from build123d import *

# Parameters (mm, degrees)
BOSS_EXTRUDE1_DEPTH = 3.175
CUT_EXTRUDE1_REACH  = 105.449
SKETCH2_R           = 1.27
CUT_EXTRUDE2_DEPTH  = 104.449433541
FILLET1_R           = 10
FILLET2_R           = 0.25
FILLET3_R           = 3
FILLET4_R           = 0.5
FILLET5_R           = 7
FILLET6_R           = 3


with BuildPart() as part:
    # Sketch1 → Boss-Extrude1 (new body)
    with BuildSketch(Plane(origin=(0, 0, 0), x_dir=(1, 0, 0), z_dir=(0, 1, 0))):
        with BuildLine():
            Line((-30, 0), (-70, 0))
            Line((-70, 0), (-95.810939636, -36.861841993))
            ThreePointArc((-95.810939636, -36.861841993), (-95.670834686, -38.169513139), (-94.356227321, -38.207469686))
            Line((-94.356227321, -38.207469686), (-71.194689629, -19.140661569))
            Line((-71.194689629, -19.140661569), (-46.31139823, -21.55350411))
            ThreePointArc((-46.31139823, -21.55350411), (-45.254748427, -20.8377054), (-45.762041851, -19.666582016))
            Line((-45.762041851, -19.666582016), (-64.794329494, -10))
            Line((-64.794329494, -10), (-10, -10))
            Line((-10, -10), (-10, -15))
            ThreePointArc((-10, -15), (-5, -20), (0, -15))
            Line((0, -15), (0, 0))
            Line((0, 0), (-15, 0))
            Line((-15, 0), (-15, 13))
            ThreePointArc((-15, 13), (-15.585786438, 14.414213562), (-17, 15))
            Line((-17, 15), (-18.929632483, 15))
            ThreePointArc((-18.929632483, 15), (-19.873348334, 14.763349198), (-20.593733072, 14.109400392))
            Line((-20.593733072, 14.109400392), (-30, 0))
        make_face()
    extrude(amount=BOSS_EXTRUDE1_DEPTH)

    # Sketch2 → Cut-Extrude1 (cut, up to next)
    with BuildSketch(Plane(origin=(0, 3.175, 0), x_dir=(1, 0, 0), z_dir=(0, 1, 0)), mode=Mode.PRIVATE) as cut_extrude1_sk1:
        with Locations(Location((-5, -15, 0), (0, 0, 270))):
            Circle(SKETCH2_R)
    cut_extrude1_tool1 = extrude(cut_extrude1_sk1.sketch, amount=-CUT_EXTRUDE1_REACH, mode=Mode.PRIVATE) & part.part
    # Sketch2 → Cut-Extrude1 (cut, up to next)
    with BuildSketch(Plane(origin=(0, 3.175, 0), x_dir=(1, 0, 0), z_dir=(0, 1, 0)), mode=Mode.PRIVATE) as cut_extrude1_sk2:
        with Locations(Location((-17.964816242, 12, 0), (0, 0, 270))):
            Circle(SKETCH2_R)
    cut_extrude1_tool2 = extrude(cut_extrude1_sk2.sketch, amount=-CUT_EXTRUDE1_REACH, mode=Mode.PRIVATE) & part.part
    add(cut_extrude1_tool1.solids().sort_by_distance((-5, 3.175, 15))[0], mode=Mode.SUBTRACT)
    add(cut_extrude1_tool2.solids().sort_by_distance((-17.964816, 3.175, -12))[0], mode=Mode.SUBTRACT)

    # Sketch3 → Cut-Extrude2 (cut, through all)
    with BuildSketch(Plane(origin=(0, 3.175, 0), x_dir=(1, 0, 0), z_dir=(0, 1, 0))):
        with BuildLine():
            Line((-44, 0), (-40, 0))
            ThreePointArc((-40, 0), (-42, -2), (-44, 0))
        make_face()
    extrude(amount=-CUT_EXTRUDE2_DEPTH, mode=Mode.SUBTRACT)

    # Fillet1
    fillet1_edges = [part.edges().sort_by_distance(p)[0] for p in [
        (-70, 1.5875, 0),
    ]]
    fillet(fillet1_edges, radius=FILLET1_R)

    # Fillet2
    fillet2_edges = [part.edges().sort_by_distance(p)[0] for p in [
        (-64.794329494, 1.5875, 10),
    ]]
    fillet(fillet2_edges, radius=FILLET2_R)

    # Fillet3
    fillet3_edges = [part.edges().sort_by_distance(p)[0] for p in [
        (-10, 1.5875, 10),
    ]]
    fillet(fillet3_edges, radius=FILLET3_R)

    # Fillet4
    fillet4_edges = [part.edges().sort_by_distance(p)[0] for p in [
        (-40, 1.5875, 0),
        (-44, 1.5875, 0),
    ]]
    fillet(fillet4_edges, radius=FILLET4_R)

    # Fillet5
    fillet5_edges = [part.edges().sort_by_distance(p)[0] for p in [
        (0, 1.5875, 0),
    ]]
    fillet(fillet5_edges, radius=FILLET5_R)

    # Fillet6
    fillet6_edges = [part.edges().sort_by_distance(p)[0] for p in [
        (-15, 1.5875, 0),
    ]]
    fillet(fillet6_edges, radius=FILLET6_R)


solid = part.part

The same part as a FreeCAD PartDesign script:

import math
import FreeCAD as App
import Part
import Sketcher
from FreeCAD import Vector
Q = App.Units.Quantity


def edges_at(feature, points):
    """Names of the edges that pass closest to the given points."""
    edges = feature.Shape.Edges
    near = lambda p: min(range(len(edges)), key=lambda i: edges[i].distToShape(Part.Vertex(*p))[0])
    return sorted({f"Edge{near(p) + 1}" for p in points})

doc = App.newDocument("Part")
body = doc.addObject("PartDesign::Body", "Body")

# Sketch on XZ plane
sketch1 = body.newObject("Sketcher::SketchObject", "Sketch")
sketch1.AttachmentSupport = (doc.getObject("XZ_Plane"), [""])
sketch1.MapMode = "FlatFace"
sketch1.addGeometry([
    Part.LineSegment(Vector(-30, 0, 0), Vector(-70, 0, 0)),  # 0
    Part.LineSegment(Vector(-70, 0, 0), Vector(-95.81094, 36.861842, 0)),  # 1
    Part.ArcOfCircle(Part.Circle(Vector(-94.991788, 37.435418, 0), Vector(0, 0, 1), 1), math.radians(50.538449), math.radians(215)),  # 2
    Part.LineSegment(Vector(-94.356227, 38.20747, 0), Vector(-71.19469, 19.140662, 0)),  # 3
    Part.LineSegment(Vector(-71.19469, 19.140662, 0), Vector(-46.311398, 21.553504, 0)),  # 4
    Part.ArcOfCircle(Part.Circle(Vector(-46.214885, 20.558172, 0), Vector(0, 0, 1), 1), math.radians(-63.073786), math.radians(95.538449)),  # 5
    Part.LineSegment(Vector(-45.762042, 19.666582, 0), Vector(-64.794329, 10, 0)),  # 6
    Part.LineSegment(Vector(-64.794329, 10, 0), Vector(-10, 10, 0)),  # 7
    Part.LineSegment(Vector(-10, 10, 0), Vector(-10, 15, 0)),  # 8
    Part.ArcOfCircle(Part.Circle(Vector(-5, 15, 0), Vector(0, 0, 1), 5), math.radians(0), math.radians(180)),  # 9
    Part.LineSegment(Vector(0, 15, 0), Vector(0, 0, 0)),  # 10
    Part.LineSegment(Vector(0, 0, 0), Vector(-15, 0, 0)),  # 11
    Part.LineSegment(Vector(-15, 0, 0), Vector(-15, -13, 0)),  # 12
    Part.ArcOfCircle(Part.Circle(Vector(-17, -13, 0), Vector(0, 0, 1), 2), math.radians(-90), math.radians(0)),  # 13
    Part.LineSegment(Vector(-17, -15, 0), Vector(-18.929632, -15, 0)),  # 14
    Part.ArcOfCircle(Part.Circle(Vector(-18.929632, -13, 0), Vector(0, 0, 1), 2), math.radians(-146.309933), math.radians(-90)),  # 15
    Part.LineSegment(Vector(-20.593733, -14.1094, 0), Vector(-30, 0, 0)),  # 16
], False)
sketch1.addConstraint([
    Sketcher.Constraint("Coincident", 0, 2, 1, 1),
    Sketcher.Constraint("Tangent", 1, 2, 2, 2),
    Sketcher.Constraint("Tangent", 2, 1, 3, 1),
    Sketcher.Constraint("Coincident", 3, 2, 4, 1),
    Sketcher.Constraint("Tangent", 4, 2, 5, 2),
    Sketcher.Constraint("Tangent", 5, 1, 6, 1),
    Sketcher.Constraint("Coincident", 6, 2, 7, 1),
    Sketcher.Constraint("Coincident", 7, 2, 8, 1),
    Sketcher.Constraint("Tangent", 8, 2, 9, 2),
    Sketcher.Constraint("Tangent", 9, 1, 10, 1),
    Sketcher.Constraint("Coincident", 10, 2, 11, 1),
    Sketcher.Constraint("Coincident", 11, 2, 12, 1),
    Sketcher.Constraint("Tangent", 12, 2, 13, 2),
    Sketcher.Constraint("Tangent", 13, 1, 14, 1),
    Sketcher.Constraint("Tangent", 14, 2, 15, 2),
    Sketcher.Constraint("Tangent", 15, 1, 16, 1),
    Sketcher.Constraint("Coincident", 16, 2, 0, 1),
    Sketcher.Constraint("Horizontal", 0),
    Sketcher.Constraint("Horizontal", 7),
    Sketcher.Constraint("Vertical", 8),
    Sketcher.Constraint("Vertical", 10),
    Sketcher.Constraint("Horizontal", 11),
    Sketcher.Constraint("Vertical", 12),
    Sketcher.Constraint("Horizontal", 14),
    Sketcher.Constraint("Coincident", 10, 2, -1, 1),
    Sketcher.Constraint("Equal", 2, 5),
    Sketcher.Constraint("Equal", 13, 15),
    Sketcher.Constraint("PointOnObject", 0, 2, -1),
    Sketcher.Constraint("Equal", 11, 10),
    Sketcher.Constraint("Radius", 2, 1.0),
    Sketcher.Constraint("Radius", 9, 5.0),
    Sketcher.Constraint("Radius", 13, 2.0),
    Sketcher.Constraint("DistanceX", 0, 2, 0, 1, 40.0),
    Sketcher.Constraint("DistanceX", 11, 2, 11, 1, 15.0),
    Sketcher.Constraint("DistanceY", 8, 1, 8, 2, 5.0),
    Sketcher.Constraint("DistanceY", 12, 2, 12, 1, 13.0),
    Sketcher.Constraint("Angle", 1, Q("125 deg")),
    Sketcher.Constraint("Distance", 1, 45.0),
    Sketcher.Constraint("Distance", 3, 30.0),
    Sketcher.Constraint("Distance", 4, 25.0),
    Sketcher.Constraint("DistanceX", 0, 2, -1, 1, 70.0),
    Sketcher.Constraint("DistanceX", 7, 1, 7, 2, 54.794329),
    Sketcher.Constraint("DistanceX", 4, 2, -1, 1, 46.311398),
    Sketcher.Constraint("DistanceY", 15, 1, -1, 1, 14.1094),
    Sketcher.Constraint("DistanceX", 3, 2, -1, 1, 71.19469),
])
pad1 = body.newObject("PartDesign::Pad", "Pad")
pad1.Profile = sketch1
pad1.Length = 3.175
pad1.Reversed = True

# Sketch on XZ plane
sketch2 = body.newObject("Sketcher::SketchObject", "Sketch001")
sketch2.AttachmentSupport = (doc.getObject("XZ_Plane"), [""])
sketch2.MapMode = "FlatFace"
sketch2.AttachmentOffset = App.Placement(Vector(0, 0, -3.175), App.Rotation())
sketch2.addGeometry(Part.Circle(Vector(-5, 15, 0), Vector(0, 0, 1), 1.27), False)
sketch2.addConstraint([
    Sketcher.Constraint("Diameter", 0, 2.54),
    Sketcher.Constraint("DistanceX", 0, 3, -1, 1, 5.0),
    Sketcher.Constraint("DistanceY", -1, 1, 0, 3, 15.0),
])
pocket1 = body.newObject("PartDesign::Pocket", "Pocket")
pocket1.Profile = sketch2
pocket1.Type = "UpToFirst"
pocket1.Reversed = True

# Sketch on XZ plane
sketch3 = body.newObject("Sketcher::SketchObject", "Sketch002")
sketch3.AttachmentSupport = (doc.getObject("XZ_Plane"), [""])
sketch3.MapMode = "FlatFace"
sketch3.AttachmentOffset = App.Placement(Vector(0, 0, -3.175), App.Rotation())
sketch3.addGeometry(Part.Circle(Vector(-17.964816, -12, 0), Vector(0, 0, 1), 1.27), False)
sketch3.addConstraint([
    Sketcher.Constraint("Diameter", 0, 2.54),
    Sketcher.Constraint("DistanceY", 0, 3, -1, 1, 12.0),
    Sketcher.Constraint("DistanceX", 0, 3, -1, 1, 17.964816),
])
pocket2 = body.newObject("PartDesign::Pocket", "Pocket001")
pocket2.Profile = sketch3
pocket2.Type = "UpToFirst"
pocket2.Reversed = True

# Sketch on XZ plane
sketch4 = body.newObject("Sketcher::SketchObject", "Sketch003")
sketch4.AttachmentSupport = (doc.getObject("XZ_Plane"), [""])
sketch4.MapMode = "FlatFace"
sketch4.AttachmentOffset = App.Placement(Vector(0, 0, -3.175), App.Rotation())
sketch4.addGeometry([
    Part.LineSegment(Vector(-40, 0, 0), Vector(-44, 0, 0)),
    Part.ArcOfCircle(Part.Circle(Vector(-42, 0, 0), Vector(0, 0, 1), 2), math.radians(0), math.radians(180)),
], False)
sketch4.addConstraint([
    Sketcher.Constraint("Coincident", 0, 1, 1, 1),
    Sketcher.Constraint("Coincident", 1, 2, 0, 2),
    Sketcher.Constraint("Horizontal", 0),
    Sketcher.Constraint("PointOnObject", 1, 3, -1),
    Sketcher.Constraint("PointOnObject", 0, 1, -1),
    Sketcher.Constraint("Radius", 1, 2.0),
    Sketcher.Constraint("DistanceX", 1, 3, -1, 1, 42.0),
])
pocket3 = body.newObject("PartDesign::Pocket", "Pocket002")
pocket3.Profile = sketch4
pocket3.Type = "ThroughAll"
pocket3.Reversed = True
doc.recompute()

fillet = body.newObject("PartDesign::Fillet", "Fillet")
fillet.Base = (pocket3, edges_at(pocket3, [(-70, 1.587, 0)]))
fillet.Radius = 10
doc.recompute()

fillet2 = body.newObject("PartDesign::Fillet", "Fillet001")
fillet2.Base = (fillet, edges_at(fillet, [(-64.794, 1.587, 10)]))
fillet2.Radius = 0.25
doc.recompute()

fillet3 = body.newObject("PartDesign::Fillet", "Fillet002")
fillet3.Base = (fillet2, edges_at(fillet2, [(-10, 1.587, 10)]))
fillet3.Radius = 3
doc.recompute()

fillet4 = body.newObject("PartDesign::Fillet", "Fillet003")
fillet4.Base = (fillet3, edges_at(fillet3, [(-40, 1.587, 0), (-44, 1.587, 0)]))
fillet4.Radius = 0.5
doc.recompute()

fillet5 = body.newObject("PartDesign::Fillet", "Fillet004")
fillet5.Base = (fillet4, edges_at(fillet4, [(0, 1.587, 0)]))
fillet5.Radius = 7
doc.recompute()

fillet6 = body.newObject("PartDesign::Fillet", "Fillet005")
fillet6.Base = (fillet5, edges_at(fillet5, [(-15, 1.587, 0)]))
fillet6.Radius = 3

doc.recompute()
